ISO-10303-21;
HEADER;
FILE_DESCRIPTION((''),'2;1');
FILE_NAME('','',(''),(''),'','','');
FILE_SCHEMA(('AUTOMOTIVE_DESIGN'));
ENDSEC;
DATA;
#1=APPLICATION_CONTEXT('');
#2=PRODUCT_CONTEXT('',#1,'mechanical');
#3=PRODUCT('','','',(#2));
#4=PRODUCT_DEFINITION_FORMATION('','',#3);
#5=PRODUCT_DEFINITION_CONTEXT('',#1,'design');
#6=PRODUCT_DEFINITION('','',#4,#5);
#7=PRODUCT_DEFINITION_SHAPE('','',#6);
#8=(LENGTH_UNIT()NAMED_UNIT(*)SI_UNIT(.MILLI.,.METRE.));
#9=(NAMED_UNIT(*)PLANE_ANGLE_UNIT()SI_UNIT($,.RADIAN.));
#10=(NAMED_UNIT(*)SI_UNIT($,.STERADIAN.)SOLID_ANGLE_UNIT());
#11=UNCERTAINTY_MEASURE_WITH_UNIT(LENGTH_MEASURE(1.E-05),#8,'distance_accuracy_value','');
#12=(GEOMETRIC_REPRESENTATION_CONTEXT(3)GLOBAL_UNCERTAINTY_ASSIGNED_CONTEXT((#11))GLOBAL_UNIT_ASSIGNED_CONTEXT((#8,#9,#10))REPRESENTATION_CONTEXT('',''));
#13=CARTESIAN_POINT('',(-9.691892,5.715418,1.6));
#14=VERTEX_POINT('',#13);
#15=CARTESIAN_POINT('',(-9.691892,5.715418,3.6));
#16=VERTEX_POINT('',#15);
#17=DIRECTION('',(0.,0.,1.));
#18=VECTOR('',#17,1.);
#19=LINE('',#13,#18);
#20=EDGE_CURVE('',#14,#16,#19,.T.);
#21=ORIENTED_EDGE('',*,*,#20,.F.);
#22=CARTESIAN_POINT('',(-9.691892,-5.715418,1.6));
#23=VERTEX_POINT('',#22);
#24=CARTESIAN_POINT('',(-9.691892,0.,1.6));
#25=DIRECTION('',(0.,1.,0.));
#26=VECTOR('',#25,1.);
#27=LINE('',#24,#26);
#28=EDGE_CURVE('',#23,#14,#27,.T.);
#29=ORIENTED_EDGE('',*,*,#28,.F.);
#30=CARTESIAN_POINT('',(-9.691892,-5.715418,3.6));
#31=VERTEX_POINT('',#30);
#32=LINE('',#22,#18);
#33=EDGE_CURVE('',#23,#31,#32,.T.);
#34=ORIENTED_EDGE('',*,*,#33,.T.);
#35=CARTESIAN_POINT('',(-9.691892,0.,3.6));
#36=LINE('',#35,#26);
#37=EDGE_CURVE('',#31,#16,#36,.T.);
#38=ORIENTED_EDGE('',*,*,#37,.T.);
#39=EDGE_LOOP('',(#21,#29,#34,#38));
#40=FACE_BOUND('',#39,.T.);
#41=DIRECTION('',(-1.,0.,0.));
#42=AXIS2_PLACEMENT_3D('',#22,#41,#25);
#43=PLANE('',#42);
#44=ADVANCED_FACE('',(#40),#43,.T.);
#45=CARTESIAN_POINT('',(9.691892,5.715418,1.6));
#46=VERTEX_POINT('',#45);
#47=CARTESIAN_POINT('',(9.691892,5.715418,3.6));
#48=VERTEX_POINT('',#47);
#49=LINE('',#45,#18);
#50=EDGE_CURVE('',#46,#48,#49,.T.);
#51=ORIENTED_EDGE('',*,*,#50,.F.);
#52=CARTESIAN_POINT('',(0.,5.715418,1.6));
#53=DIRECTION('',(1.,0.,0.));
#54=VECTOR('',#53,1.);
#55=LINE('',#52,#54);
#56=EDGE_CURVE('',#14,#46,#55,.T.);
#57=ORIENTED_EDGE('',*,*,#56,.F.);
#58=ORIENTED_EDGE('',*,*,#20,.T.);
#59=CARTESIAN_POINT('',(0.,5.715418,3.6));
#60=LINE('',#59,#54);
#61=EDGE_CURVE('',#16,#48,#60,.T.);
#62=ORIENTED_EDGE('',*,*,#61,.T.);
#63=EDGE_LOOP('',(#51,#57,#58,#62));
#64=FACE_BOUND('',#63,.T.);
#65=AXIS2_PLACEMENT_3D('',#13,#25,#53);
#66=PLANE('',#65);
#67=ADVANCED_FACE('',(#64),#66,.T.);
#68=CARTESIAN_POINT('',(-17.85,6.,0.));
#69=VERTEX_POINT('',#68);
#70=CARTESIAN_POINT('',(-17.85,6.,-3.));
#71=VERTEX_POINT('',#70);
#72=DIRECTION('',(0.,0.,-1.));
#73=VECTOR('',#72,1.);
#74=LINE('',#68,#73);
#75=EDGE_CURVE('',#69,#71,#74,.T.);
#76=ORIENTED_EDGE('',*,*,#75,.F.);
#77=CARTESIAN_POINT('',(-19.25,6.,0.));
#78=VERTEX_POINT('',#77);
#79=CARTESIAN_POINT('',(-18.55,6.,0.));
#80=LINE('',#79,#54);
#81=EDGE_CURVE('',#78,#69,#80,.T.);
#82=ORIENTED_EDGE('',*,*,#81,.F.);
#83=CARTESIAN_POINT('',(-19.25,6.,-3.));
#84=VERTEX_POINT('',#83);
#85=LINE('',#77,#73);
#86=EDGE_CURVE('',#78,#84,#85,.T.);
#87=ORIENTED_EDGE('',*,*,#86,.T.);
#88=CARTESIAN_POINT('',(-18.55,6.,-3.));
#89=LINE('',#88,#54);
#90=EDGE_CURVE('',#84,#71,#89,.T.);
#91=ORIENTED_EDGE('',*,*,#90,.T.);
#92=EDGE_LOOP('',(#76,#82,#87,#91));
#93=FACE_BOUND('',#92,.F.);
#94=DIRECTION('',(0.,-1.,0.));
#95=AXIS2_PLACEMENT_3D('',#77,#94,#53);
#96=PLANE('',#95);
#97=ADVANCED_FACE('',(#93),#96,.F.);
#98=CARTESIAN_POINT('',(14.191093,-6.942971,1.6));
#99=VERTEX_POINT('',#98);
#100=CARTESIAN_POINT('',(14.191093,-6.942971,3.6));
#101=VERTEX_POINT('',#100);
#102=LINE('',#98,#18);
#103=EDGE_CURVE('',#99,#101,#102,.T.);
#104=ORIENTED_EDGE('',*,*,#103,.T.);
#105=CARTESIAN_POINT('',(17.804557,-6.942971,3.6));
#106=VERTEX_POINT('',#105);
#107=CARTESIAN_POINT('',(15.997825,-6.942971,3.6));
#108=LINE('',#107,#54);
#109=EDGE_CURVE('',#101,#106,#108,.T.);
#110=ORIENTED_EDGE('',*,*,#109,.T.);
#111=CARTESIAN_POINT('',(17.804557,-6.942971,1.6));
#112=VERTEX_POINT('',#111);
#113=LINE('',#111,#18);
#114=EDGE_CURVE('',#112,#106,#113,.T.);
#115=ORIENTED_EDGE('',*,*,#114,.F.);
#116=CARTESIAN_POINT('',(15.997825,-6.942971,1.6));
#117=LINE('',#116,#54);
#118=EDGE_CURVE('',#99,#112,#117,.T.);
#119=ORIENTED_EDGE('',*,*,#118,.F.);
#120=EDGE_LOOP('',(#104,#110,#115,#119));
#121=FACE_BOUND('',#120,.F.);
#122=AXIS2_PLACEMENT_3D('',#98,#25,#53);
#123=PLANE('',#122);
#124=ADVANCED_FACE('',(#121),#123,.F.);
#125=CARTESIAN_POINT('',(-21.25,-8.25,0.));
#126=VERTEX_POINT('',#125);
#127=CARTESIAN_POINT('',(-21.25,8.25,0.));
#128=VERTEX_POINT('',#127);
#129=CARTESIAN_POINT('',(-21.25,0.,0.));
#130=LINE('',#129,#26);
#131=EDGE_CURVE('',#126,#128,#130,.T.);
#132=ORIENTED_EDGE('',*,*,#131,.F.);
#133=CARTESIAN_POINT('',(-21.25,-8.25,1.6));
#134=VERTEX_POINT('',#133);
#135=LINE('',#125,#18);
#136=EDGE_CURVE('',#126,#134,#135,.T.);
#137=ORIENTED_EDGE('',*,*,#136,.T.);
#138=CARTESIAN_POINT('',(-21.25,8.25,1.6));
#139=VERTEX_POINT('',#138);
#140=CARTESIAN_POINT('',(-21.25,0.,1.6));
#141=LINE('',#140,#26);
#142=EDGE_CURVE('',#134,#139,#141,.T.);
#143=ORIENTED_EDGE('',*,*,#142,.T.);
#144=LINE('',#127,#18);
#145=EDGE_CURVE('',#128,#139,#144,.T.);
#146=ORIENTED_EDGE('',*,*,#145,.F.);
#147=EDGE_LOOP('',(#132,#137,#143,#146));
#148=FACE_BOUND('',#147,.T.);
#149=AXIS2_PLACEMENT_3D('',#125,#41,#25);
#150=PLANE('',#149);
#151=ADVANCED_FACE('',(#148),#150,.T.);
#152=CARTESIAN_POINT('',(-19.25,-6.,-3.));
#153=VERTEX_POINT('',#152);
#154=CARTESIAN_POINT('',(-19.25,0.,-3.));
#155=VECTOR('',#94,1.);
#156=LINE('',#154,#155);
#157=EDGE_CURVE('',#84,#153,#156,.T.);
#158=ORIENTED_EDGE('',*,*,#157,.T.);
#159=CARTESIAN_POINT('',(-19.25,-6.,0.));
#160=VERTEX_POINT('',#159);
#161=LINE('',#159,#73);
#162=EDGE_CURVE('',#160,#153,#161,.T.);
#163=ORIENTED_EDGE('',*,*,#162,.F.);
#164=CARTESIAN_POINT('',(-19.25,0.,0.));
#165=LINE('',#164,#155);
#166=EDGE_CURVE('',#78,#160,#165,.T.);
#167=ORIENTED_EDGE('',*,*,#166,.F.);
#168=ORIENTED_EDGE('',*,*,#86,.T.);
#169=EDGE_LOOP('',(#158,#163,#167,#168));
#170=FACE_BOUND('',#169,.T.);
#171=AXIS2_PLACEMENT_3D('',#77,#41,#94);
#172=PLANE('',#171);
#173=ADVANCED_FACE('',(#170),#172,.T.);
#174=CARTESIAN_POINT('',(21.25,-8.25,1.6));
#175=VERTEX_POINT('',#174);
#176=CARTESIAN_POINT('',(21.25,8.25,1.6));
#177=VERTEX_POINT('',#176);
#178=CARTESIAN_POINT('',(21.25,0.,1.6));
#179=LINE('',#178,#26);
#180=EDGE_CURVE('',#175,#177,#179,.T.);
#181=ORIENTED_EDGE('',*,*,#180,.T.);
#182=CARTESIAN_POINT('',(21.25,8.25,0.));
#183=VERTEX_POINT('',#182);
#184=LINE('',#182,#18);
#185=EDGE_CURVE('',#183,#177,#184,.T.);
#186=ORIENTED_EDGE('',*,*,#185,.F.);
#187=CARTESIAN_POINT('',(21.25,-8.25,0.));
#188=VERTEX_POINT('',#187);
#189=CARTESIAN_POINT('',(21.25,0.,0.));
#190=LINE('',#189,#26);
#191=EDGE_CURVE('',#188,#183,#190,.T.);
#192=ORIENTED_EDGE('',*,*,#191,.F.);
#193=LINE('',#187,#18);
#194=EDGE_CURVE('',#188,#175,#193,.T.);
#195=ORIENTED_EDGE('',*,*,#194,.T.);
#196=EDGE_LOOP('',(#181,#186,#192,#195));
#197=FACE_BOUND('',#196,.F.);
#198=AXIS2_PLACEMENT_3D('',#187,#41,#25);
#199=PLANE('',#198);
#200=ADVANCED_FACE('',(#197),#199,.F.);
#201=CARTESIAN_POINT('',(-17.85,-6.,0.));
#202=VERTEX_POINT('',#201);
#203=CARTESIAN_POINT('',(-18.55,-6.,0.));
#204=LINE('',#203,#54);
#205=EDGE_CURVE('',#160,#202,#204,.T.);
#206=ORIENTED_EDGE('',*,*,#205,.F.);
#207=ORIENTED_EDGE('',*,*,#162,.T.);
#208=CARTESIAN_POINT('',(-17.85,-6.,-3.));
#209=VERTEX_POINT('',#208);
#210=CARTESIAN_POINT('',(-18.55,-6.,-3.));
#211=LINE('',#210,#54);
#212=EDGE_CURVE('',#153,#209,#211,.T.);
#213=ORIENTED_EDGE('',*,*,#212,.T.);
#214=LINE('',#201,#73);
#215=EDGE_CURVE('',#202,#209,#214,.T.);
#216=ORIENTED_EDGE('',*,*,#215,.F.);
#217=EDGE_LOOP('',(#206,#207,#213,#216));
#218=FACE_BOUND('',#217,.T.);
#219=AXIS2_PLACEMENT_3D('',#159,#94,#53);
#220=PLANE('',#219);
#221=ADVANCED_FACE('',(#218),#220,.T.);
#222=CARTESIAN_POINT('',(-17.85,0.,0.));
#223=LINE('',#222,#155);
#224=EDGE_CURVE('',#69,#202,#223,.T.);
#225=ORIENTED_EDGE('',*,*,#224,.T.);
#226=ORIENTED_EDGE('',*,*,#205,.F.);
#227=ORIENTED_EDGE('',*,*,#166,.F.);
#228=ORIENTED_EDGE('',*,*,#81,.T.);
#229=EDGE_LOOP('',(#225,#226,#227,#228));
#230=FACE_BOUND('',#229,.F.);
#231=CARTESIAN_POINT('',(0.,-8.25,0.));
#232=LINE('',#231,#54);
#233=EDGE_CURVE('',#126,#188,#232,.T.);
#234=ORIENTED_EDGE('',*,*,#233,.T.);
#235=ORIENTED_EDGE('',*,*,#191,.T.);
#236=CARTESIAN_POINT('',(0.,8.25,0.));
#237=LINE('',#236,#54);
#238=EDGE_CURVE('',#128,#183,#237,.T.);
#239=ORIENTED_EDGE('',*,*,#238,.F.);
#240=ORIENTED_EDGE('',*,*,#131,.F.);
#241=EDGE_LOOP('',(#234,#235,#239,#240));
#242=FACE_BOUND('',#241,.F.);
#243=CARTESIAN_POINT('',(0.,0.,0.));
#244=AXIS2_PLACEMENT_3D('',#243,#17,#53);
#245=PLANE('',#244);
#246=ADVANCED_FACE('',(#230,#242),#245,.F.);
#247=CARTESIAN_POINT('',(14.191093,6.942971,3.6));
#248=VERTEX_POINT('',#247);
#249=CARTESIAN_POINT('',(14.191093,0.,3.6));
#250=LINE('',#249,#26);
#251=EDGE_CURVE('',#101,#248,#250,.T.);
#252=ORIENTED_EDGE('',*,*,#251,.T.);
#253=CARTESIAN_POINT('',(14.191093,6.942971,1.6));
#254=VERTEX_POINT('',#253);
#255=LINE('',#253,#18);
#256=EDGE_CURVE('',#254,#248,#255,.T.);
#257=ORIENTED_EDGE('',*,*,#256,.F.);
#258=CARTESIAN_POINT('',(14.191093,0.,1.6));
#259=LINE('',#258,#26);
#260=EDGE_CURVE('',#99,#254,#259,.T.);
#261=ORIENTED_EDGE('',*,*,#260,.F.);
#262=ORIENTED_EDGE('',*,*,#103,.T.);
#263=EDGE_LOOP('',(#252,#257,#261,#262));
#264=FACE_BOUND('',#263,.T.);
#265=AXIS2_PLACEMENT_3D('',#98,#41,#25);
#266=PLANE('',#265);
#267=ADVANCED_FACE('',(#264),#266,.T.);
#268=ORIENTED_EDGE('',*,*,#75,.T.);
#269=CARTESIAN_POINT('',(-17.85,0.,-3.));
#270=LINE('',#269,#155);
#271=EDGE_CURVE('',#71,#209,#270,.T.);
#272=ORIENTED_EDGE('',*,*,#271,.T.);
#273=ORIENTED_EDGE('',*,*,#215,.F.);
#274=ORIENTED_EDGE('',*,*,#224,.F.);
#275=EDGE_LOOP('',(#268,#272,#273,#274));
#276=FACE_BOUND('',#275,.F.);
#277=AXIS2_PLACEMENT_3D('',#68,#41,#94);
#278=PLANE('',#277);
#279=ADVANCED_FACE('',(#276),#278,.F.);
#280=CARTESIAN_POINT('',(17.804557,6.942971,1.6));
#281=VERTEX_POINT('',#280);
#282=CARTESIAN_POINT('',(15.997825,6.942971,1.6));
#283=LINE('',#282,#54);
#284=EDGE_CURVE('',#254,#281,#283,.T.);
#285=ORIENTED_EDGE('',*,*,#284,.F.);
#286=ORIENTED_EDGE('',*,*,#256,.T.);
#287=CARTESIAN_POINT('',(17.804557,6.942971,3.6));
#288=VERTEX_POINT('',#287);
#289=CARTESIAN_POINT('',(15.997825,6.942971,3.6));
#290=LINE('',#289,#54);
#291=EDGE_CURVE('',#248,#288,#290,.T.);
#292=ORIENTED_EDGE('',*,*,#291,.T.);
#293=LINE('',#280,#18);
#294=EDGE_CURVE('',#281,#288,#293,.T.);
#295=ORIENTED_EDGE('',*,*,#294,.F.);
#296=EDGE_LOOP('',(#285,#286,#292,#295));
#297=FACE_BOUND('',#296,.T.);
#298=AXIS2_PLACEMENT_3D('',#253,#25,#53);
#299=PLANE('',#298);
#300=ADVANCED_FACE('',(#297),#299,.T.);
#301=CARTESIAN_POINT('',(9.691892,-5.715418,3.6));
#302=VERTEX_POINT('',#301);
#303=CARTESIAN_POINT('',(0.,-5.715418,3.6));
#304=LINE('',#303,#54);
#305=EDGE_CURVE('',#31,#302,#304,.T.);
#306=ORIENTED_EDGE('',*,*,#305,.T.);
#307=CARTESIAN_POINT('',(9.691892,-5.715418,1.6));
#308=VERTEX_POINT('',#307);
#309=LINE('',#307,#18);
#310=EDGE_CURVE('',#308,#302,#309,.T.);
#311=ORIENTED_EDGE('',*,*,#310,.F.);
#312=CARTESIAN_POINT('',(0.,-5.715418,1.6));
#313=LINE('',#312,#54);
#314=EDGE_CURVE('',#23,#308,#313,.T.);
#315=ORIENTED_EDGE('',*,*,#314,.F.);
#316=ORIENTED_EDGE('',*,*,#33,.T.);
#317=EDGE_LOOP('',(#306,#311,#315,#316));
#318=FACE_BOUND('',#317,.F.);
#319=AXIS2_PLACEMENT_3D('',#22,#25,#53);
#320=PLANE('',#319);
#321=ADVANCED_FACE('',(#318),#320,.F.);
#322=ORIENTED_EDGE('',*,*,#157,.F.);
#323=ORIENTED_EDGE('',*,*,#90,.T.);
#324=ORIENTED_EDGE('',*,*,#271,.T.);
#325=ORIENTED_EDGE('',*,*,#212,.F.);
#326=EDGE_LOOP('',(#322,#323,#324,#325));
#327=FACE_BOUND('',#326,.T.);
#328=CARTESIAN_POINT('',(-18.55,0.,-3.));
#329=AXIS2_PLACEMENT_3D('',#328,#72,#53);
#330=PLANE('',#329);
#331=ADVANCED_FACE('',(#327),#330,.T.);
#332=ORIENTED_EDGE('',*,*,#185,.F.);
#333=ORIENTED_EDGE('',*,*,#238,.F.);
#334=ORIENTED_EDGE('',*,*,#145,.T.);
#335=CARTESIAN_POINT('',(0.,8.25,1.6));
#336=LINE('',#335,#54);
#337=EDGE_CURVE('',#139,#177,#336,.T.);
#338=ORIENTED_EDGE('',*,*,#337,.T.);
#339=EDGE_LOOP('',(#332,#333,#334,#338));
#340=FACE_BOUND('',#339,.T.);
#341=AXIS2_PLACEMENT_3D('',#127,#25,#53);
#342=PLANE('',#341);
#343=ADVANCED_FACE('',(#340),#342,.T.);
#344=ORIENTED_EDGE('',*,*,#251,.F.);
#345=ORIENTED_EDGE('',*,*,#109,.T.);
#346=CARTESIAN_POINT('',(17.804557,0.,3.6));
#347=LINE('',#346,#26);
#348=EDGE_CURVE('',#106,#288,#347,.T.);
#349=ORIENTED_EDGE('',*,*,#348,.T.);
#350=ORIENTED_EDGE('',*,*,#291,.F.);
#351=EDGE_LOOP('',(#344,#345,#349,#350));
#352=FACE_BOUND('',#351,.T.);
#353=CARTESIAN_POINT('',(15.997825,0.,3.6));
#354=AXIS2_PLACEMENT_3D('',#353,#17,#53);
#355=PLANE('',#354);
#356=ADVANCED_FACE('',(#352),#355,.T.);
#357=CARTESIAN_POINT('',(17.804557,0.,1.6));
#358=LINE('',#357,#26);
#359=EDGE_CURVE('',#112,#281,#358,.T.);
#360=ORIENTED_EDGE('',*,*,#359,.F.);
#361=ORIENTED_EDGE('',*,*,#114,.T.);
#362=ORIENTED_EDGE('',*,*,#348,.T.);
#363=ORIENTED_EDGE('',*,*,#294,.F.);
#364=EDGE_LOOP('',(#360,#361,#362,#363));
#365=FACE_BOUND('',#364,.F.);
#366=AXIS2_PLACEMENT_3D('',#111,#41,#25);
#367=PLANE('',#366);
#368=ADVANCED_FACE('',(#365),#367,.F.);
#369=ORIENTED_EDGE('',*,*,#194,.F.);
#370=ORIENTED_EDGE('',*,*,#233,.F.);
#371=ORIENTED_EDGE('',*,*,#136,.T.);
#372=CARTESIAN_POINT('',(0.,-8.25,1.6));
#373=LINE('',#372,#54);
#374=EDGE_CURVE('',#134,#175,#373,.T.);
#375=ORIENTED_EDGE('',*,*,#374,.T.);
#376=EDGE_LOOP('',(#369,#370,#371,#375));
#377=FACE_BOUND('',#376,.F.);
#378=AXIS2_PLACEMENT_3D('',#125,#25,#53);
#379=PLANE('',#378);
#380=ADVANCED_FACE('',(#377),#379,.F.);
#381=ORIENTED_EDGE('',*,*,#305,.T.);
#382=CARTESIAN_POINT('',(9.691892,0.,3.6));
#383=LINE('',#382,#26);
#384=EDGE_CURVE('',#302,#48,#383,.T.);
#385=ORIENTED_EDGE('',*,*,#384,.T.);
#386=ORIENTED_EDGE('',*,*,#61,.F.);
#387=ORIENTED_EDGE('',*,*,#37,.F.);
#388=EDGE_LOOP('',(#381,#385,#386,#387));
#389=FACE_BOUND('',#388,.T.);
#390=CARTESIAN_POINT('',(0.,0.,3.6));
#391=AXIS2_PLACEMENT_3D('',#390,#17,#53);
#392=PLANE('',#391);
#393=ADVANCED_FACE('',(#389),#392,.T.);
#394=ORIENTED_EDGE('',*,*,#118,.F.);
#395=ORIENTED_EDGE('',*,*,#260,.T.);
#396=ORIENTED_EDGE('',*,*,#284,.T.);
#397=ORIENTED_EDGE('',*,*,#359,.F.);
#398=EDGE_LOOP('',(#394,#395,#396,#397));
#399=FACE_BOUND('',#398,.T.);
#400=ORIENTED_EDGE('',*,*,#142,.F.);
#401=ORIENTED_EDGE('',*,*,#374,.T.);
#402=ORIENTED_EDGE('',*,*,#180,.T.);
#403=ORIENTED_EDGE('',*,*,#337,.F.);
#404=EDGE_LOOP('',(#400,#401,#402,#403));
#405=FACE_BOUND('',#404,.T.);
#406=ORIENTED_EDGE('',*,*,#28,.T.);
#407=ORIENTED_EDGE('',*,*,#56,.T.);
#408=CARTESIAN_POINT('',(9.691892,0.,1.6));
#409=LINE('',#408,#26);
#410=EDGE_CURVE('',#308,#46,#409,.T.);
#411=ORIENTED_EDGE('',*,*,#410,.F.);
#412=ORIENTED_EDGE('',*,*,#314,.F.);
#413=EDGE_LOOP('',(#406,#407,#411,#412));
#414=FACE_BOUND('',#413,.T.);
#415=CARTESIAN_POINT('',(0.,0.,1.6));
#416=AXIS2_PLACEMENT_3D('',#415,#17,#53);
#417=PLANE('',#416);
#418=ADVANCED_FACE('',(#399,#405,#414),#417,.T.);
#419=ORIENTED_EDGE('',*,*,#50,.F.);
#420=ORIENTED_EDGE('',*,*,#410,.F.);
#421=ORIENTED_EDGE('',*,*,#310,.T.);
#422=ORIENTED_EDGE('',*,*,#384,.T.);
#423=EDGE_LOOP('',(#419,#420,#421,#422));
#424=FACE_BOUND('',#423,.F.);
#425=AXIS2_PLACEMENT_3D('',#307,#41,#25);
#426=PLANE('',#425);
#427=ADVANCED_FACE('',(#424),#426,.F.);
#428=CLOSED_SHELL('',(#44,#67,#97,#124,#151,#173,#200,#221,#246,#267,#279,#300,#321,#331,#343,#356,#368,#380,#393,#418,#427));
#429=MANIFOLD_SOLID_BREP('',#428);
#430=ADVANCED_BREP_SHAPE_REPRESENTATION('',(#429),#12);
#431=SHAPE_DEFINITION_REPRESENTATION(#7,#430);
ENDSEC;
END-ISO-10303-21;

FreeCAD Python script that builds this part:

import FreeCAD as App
import Part
import Sketcher

doc = App.newDocument("Part")
params = doc.addObject("Spreadsheet::Sheet", "Params")
for row, (alias, value) in enumerate([
    ("sketch1_width", "42.5 mm"),
    ("sketch1_height", "16.5 mm"),
    ("pad1_length", "1.6 mm"),
    ("pad2_length", "2 mm"),
    ("sketch3_height", "12 mm"),
    ("sketch3_width", "1.4 mm"),
    ("pad3_length", "3 mm"),
], start=1):
    params.set(f"A{row}", alias)
    params.set(f"B{row}", "=" + value)
    params.setAlias(f"B{row}", alias)

body = doc.addObject("PartDesign::Body", "Body")

# Sketch on XY plane
sketch1 = doc.addObject("Sketcher::SketchObject", "Sketch")
body.addObject(sketch1)
sketch1.AttachmentSupport = (doc.XY_Plane, [""])
sketch1.MapMode = "FlatFace"
sketch1.addGeometry([
    Part.LineSegment(App.Vector(-21, 8, 0), App.Vector(-21, -8, 0)),
    Part.LineSegment(App.Vector(-21, -8, 0), App.Vector(21, -8, 0)),
    Part.LineSegment(App.Vector(21, -8, 0), App.Vector(21, 8, 0)),
    Part.LineSegment(App.Vector(21, 8, 0), App.Vector(-21, 8, 0)),
], False)
sketch1.addConstraint([
    Sketcher.Constraint("Coincident", 0, 2, 1, 1),
    Sketcher.Constraint("Coincident", 1, 2, 2, 1),
    Sketcher.Constraint("Coincident", 2, 2, 3, 1),
    Sketcher.Constraint("Coincident", 3, 2, 0, 1),
    Sketcher.Constraint("Vertical", 0),
    Sketcher.Constraint("Horizontal", 1),
    Sketcher.Constraint("Vertical", 2),
    Sketcher.Constraint("Horizontal", 3),
    Sketcher.Constraint("Symmetric", 0, 2, 2, 2, -1, 1),
    Sketcher.Constraint("DistanceX", 1, 1, 1, 2, 42.5),
    Sketcher.Constraint("DistanceY", 0, 2, 0, 1, 16.5),
])
sketch1.setExpression("Constraints[9]", "Params.sketch1_width")
sketch1.setExpression("Constraints[10]", "Params.sketch1_height")
pad1 = doc.addObject("PartDesign::Pad", "Pad")
body.addObject(pad1)
pad1.Profile = sketch1
pad1.setExpression("Length", "Params.pad1_length")

# Sketch on XY plane
sketch2 = doc.addObject("Sketcher::SketchObject", "Sketch001")
body.addObject(sketch2)
sketch2.AttachmentSupport = (doc.XY_Plane, [""])
sketch2.MapMode = "FlatFace"
sketch2.AttachmentOffset = App.Placement(App.Vector(0, 0, 1.6), App.Rotation())
sketch2.addGeometry([
    Part.LineSegment(App.Vector(-9.7, 5.7, 0), App.Vector(-9.7, -5.7, 0)),  # 0
    Part.LineSegment(App.Vector(-9.7, -5.7, 0), App.Vector(9.7, -5.7, 0)),  # 1
    Part.LineSegment(App.Vector(9.7, -5.7, 0), App.Vector(9.7, 5.7, 0)),  # 2
    Part.LineSegment(App.Vector(9.7, 5.7, 0), App.Vector(-9.7, 5.7, 0)),  # 3
    Part.LineSegment(App.Vector(14.2, 6.9, 0), App.Vector(14.2, -6.9, 0)),  # 4
    Part.LineSegment(App.Vector(14.2, -6.9, 0), App.Vector(17.8, -6.9, 0)),  # 5
    Part.LineSegment(App.Vector(17.8, -6.9, 0), App.Vector(17.8, 6.9, 0)),  # 6
    Part.LineSegment(App.Vector(17.8, 6.9, 0), App.Vector(14.2, 6.9, 0)),  # 7
], False)
sketch2.addConstraint([
    Sketcher.Constraint("Coincident", 0, 2, 1, 1),
    Sketcher.Constraint("Coincident", 1, 2, 2, 1),
    Sketcher.Constraint("Coincident", 2, 2, 3, 1),
    Sketcher.Constraint("Coincident", 3, 2, 0, 1),
    Sketcher.Constraint("Coincident", 4, 2, 5, 1),
    Sketcher.Constraint("Coincident", 5, 2, 6, 1),
    Sketcher.Constraint("Coincident", 6, 2, 7, 1),
    Sketcher.Constraint("Coincident", 7, 2, 4, 1),
    Sketcher.Constraint("Vertical", 0),
    Sketcher.Constraint("Horizontal", 1),
    Sketcher.Constraint("Vertical", 2),
    Sketcher.Constraint("Horizontal", 3),
    Sketcher.Constraint("Vertical", 4),
    Sketcher.Constraint("Horizontal", 5),
    Sketcher.Constraint("Vertical", 6),
    Sketcher.Constraint("Horizontal", 7),
    Sketcher.Constraint("Symmetric", 0, 2, 2, 2, -1, 1),
    Sketcher.Constraint("DistanceX", 1, 2, 4, 2, 4.499201),
    Sketcher.Constraint("DistanceX", 1, 1, 1, 2, 19.383784),
    Sketcher.Constraint("DistanceX", 5, 1, 5, 2, 3.613464),
    Sketcher.Constraint("DistanceY", 0, 2, 0, 1, 11.430836),
    Sketcher.Constraint("DistanceY", 4, 2, 4, 1, 13.885942),
    Sketcher.Constraint("DistanceY", 4, 2, -1, 1, 6.942971),
])
pad2 = doc.addObject("PartDesign::Pad", "Pad001")
body.addObject(pad2)
pad2.Profile = sketch2
pad2.setExpression("Length", "Params.pad2_length")

# Sketch on XY plane
sketch3 = doc.addObject("Sketcher::SketchObject", "Sketch002")
body.addObject(sketch3)
sketch3.AttachmentSupport = (doc.XY_Plane, [""])
sketch3.MapMode = "FlatFace"
sketch3.addGeometry([
    Part.LineSegment(App.Vector(-19.2, -6, 0), App.Vector(-19.2, 6, 0)),
    Part.LineSegment(App.Vector(-19.2, 6, 0), App.Vector(-17.9, 6, 0)),
    Part.LineSegment(App.Vector(-17.9, 6, 0), App.Vector(-17.9, -6, 0)),
    Part.LineSegment(App.Vector(-17.9, -6, 0), App.Vector(-19.2, -6, 0)),
], False)
sketch3.addConstraint([
    Sketcher.Constraint("Coincident", 0, 2, 1, 1),
    Sketcher.Constraint("Coincident", 1, 2, 2, 1),
    Sketcher.Constraint("Coincident", 2, 2, 3, 1),
    Sketcher.Constraint("Coincident", 3, 2, 0, 1),
    Sketcher.Constraint("Vertical", 0),
    Sketcher.Constraint("Horizontal", 1),
    Sketcher.Constraint("Vertical", 2),
    Sketcher.Constraint("Horizontal", 3),
    Sketcher.Constraint("DistanceY", 0, 1, 0, 2, 12.0),
    Sketcher.Constraint("DistanceX", 1, 1, 1, 2, 1.4),
    Sketcher.Constraint("DistanceY", -1, 1, 0, 2, 6.0),
    Sketcher.Constraint("DistanceX", 0, 2, -1, 1, 19.25),
])
sketch3.setExpression("Constraints[8]", "Params.sketch3_height")
sketch3.setExpression("Constraints[9]", "Params.sketch3_width")
pad3 = doc.addObject("PartDesign::Pad", "Pad002")
body.addObject(pad3)
pad3.Profile = sketch3
pad3.setExpression("Length", "Params.pad3_length")
pad3.Reversed = True

doc.recompute()
